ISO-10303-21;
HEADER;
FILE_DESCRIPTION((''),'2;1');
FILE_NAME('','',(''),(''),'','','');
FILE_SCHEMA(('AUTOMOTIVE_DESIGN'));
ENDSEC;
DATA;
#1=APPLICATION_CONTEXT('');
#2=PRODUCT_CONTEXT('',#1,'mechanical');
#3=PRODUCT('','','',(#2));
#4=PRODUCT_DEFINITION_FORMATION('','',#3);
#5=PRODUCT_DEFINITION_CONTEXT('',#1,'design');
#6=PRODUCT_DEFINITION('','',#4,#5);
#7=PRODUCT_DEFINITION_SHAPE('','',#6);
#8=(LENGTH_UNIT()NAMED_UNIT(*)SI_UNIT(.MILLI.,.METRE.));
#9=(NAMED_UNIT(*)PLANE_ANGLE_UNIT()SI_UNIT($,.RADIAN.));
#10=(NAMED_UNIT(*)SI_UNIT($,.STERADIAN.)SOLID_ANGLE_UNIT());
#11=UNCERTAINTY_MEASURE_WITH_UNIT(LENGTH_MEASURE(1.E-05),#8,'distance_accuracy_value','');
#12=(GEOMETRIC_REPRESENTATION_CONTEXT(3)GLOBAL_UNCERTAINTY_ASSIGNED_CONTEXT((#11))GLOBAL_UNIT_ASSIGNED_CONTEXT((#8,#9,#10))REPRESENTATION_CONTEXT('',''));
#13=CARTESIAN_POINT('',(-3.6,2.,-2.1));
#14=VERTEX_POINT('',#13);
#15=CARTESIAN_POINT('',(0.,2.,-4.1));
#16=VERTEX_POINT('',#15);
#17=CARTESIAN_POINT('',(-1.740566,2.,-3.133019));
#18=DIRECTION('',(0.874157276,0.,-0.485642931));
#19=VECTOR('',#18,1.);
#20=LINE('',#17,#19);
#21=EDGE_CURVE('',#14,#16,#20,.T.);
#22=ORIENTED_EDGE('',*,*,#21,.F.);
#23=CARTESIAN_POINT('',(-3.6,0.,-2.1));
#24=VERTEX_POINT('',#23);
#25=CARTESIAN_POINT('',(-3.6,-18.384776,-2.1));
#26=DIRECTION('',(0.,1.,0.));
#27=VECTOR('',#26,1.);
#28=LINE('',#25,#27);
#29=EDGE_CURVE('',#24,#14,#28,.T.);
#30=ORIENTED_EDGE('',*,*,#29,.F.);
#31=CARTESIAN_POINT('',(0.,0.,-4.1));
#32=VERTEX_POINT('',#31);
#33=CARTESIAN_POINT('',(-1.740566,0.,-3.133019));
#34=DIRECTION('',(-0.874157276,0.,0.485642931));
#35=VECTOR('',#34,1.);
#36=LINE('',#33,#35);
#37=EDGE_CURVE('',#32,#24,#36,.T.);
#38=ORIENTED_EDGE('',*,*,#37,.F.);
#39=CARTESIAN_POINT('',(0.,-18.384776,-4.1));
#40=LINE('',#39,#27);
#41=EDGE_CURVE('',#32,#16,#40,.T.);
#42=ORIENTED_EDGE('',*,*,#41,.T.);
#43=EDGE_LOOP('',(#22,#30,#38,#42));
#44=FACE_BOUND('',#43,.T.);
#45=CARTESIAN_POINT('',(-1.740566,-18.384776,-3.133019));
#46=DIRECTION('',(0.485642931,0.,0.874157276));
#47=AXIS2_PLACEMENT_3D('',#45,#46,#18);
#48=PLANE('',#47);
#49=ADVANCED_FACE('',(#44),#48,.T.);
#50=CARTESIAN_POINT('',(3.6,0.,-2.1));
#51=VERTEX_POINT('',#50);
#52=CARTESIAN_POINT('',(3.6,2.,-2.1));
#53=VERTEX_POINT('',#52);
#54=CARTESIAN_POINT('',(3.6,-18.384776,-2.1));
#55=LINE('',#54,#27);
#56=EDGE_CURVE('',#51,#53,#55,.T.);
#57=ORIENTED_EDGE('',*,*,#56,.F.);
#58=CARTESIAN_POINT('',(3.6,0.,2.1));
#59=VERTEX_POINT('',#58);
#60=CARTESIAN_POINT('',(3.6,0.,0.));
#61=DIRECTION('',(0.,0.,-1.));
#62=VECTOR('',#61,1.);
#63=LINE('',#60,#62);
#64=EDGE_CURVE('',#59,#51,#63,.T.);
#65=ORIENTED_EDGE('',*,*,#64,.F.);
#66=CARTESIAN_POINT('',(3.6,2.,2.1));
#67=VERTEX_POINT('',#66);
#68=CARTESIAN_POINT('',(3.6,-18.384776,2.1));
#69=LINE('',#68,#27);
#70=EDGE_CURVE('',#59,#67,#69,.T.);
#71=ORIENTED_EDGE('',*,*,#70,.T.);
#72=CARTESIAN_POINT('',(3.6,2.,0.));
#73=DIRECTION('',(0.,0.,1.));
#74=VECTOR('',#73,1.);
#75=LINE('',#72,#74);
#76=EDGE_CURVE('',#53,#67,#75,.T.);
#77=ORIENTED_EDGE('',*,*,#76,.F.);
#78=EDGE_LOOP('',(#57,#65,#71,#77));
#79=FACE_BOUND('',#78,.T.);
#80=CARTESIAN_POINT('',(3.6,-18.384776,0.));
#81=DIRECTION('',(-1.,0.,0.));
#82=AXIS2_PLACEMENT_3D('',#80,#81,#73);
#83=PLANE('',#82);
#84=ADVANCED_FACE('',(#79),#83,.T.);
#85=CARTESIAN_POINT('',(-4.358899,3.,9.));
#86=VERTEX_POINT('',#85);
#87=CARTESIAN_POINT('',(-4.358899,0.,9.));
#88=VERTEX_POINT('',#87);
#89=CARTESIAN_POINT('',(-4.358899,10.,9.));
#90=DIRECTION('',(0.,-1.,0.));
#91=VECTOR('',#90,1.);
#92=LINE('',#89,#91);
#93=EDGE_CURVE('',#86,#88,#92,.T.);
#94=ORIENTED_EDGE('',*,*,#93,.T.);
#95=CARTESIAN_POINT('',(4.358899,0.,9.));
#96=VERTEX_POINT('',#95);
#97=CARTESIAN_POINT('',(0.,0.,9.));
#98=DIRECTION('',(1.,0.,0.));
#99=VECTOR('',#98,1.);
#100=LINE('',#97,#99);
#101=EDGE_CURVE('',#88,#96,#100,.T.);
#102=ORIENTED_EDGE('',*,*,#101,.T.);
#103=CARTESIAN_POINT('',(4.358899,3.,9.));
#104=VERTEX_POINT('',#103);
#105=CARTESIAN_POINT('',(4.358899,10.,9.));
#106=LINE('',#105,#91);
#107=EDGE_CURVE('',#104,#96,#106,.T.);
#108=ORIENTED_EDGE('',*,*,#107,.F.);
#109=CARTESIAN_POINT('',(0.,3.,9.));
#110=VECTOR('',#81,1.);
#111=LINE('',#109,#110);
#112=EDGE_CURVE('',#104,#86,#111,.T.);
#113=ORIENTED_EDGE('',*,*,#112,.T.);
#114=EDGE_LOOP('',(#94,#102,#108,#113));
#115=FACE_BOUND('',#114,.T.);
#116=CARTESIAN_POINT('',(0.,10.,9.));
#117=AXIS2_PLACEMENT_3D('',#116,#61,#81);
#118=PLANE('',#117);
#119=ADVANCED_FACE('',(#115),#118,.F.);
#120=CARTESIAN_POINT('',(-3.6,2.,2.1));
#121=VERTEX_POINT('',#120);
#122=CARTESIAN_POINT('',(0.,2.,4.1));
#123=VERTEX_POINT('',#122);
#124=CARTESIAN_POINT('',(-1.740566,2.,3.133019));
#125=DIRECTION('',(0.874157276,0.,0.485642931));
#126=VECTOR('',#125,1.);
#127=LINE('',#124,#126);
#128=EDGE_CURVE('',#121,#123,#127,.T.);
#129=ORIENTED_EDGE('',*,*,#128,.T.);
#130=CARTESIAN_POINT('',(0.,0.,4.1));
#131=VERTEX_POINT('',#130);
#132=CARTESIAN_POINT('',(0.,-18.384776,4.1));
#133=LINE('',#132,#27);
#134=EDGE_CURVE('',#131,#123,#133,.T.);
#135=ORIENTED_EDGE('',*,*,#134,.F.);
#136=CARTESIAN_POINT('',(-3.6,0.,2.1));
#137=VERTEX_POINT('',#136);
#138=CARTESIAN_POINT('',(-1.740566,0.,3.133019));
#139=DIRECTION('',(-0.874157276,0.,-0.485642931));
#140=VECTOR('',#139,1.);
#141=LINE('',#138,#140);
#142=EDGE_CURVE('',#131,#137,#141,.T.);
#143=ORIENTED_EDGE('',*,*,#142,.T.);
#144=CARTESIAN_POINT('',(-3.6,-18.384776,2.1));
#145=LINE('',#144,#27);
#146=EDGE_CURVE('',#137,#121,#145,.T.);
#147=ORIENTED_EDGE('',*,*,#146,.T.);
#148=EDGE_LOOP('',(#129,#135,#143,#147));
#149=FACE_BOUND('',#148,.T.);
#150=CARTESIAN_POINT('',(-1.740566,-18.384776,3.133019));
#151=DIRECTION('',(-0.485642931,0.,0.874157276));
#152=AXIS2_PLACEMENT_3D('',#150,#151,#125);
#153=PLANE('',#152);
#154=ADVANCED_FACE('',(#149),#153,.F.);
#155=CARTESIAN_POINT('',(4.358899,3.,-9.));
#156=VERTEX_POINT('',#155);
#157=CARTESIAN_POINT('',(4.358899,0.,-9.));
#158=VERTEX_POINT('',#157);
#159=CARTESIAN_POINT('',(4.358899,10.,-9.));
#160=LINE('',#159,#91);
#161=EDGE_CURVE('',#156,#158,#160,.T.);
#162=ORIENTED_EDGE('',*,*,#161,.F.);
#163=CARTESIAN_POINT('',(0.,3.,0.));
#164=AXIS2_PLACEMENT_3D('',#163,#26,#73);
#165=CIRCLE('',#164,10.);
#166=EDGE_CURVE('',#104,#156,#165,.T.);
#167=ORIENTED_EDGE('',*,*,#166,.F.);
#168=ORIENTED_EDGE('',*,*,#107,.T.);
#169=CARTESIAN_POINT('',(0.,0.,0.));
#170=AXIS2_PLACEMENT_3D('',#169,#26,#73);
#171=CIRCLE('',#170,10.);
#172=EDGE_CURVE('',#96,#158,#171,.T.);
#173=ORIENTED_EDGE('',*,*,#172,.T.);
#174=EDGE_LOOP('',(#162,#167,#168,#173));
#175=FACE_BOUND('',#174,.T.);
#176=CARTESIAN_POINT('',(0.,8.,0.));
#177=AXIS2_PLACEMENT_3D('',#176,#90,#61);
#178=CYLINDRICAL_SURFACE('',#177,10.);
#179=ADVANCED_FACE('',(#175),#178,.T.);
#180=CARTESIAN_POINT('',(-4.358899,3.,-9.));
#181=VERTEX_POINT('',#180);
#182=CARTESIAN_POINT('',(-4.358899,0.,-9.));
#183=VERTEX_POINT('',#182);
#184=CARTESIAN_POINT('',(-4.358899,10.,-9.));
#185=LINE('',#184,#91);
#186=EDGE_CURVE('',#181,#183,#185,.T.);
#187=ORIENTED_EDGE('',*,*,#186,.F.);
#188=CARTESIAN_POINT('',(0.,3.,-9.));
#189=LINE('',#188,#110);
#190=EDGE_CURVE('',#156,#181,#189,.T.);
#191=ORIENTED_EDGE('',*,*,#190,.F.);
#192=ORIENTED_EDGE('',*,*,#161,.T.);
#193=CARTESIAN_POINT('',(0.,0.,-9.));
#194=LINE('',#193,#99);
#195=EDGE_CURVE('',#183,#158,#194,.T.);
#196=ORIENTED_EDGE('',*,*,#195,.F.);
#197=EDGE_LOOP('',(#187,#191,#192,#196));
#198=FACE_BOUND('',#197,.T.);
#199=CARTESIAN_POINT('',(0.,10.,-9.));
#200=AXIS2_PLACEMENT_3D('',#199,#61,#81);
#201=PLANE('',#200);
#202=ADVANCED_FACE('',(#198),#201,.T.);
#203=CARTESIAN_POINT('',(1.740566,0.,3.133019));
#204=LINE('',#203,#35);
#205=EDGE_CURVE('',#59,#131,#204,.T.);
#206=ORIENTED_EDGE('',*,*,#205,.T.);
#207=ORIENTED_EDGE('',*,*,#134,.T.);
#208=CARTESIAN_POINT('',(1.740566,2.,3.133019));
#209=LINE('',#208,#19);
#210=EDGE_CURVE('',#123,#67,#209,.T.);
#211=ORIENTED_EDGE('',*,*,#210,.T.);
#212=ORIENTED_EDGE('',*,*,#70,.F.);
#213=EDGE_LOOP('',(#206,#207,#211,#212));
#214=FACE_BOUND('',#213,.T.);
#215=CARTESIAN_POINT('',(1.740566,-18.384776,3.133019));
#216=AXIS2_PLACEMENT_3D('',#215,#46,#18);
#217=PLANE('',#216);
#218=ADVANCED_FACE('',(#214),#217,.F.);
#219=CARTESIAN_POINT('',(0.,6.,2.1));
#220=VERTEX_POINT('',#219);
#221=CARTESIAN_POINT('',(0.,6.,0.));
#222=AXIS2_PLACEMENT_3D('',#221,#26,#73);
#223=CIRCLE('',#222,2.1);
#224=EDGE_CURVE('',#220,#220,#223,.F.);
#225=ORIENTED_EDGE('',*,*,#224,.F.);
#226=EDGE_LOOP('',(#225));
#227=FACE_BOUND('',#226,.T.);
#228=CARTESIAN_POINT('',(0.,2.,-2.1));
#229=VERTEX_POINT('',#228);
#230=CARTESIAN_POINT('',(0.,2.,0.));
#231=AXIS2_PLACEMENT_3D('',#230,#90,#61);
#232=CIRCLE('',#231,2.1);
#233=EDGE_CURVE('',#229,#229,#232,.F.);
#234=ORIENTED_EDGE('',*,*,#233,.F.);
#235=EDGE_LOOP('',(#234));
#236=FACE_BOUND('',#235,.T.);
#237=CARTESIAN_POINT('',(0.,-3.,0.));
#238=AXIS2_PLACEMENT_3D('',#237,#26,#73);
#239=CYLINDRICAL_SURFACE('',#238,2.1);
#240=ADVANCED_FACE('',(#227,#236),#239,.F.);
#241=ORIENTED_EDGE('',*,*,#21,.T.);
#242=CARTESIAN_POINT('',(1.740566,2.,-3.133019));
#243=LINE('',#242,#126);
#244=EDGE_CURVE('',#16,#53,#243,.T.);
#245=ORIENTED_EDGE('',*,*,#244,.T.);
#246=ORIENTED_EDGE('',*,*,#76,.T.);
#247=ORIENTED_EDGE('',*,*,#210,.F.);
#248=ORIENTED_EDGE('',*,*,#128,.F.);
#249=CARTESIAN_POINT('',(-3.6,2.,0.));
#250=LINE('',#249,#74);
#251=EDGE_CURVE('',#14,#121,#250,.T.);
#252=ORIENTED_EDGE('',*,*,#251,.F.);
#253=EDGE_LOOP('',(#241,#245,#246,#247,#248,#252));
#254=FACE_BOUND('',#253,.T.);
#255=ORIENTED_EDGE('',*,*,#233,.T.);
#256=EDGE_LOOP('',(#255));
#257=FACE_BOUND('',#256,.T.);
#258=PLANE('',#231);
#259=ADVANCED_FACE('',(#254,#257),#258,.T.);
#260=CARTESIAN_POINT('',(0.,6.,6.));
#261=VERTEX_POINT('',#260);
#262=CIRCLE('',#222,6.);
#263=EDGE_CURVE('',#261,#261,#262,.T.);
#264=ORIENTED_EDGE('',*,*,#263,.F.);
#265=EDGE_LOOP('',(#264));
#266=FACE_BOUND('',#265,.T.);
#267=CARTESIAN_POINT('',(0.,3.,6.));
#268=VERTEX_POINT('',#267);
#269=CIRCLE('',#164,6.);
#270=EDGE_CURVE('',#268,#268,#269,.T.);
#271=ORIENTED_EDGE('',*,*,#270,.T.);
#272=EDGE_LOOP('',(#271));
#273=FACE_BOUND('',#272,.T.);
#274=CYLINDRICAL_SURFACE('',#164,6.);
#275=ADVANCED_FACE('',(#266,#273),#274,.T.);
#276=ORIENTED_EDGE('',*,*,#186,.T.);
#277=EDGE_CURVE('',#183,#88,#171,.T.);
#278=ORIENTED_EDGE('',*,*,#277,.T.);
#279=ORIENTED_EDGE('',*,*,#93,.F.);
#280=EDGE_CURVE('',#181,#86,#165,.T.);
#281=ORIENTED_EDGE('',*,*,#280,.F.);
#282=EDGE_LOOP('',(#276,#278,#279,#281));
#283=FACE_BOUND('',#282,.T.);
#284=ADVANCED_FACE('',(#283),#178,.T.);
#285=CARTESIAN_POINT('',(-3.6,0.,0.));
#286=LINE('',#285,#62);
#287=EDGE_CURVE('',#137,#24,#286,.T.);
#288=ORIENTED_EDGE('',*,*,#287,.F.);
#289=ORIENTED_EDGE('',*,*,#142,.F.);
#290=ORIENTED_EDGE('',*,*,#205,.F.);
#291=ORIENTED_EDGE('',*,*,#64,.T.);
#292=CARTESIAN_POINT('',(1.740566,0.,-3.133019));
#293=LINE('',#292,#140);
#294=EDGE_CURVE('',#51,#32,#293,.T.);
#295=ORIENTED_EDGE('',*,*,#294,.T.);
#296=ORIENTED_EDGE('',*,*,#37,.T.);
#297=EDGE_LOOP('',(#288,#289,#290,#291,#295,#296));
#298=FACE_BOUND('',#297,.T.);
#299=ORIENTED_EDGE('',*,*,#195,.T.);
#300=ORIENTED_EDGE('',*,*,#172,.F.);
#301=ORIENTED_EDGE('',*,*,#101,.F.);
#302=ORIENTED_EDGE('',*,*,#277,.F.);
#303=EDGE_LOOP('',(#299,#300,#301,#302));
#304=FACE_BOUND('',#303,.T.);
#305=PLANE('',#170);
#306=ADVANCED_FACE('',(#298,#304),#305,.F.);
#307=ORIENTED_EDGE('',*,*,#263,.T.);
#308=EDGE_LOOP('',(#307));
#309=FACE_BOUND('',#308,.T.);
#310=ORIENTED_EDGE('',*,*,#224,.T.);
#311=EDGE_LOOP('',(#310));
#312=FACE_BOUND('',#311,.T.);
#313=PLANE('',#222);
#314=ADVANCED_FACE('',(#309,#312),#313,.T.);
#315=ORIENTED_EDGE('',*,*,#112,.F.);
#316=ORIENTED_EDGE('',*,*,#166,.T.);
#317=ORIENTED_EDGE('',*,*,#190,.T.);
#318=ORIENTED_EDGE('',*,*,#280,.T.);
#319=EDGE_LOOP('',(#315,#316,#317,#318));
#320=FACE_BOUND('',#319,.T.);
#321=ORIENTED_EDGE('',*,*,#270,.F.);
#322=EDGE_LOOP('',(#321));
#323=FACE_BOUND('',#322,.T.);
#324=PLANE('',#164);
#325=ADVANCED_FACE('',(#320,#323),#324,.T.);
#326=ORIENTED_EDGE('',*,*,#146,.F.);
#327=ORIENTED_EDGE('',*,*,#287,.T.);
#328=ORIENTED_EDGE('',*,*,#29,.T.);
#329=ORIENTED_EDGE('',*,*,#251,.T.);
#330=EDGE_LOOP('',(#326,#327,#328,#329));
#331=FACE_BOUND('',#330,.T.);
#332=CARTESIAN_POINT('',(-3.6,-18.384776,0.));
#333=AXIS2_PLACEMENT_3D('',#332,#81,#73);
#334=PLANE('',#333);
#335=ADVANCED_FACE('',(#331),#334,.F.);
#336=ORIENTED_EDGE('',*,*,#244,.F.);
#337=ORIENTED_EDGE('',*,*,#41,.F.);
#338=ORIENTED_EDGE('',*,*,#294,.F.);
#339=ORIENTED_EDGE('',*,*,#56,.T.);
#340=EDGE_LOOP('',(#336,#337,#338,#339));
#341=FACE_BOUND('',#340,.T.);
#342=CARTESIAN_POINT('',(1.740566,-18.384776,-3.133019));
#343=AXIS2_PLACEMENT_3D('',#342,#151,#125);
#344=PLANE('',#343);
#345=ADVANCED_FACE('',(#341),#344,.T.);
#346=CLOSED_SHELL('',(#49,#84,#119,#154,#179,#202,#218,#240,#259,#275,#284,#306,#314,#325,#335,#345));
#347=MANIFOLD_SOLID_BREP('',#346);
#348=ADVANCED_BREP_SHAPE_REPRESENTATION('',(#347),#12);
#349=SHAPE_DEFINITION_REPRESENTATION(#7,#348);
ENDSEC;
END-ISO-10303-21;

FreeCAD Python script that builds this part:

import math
import FreeCAD as App
import Part
import Sketcher

V = App.Vector
Q = App.Units.Quantity

doc = App.newDocument("Part")
params = doc.addObject("Spreadsheet::Sheet", "Params")
for row, (alias, value) in enumerate([
    ("sketch1_diameter", "20 mm"),
    ("pad1_length", "8 mm"),
    ("sketch2_diameter", "20 mm"),
    ("sketch2_diameter2", "12 mm"),
    ("pocket1_length", "5 mm"),
    ("sketch3_diameter", "4.2 mm"),
    ("pocket2_length", "11 mm"),
    ("sketch4_diameter", "12 mm"),
    ("pocket3_length", "1.5 mm"),
    ("sketch5_diameter", "13 mm"),
    ("pocket4_length", "2 mm"),
    ("sketch6_diameter", "12 mm"),
    ("pocket5_length", "1 mm"),
    ("sketch7_diameter", "12 mm"),
    ("pocket6_length", "1 mm"),
    ("sketch8_diameter", "13 mm"),
    ("sketch8_height", "4.2 mm"),
    ("pad2_length", "2 mm"),
    ("sketch9_radius", "10 mm"),
    ("pocket7_length", "10 mm"),
], start=1):
    params.set(f"A{row}", alias)
    params.set(f"B{row}", "=" + value)
    params.setAlias(f"B{row}", alias)

body = doc.addObject("PartDesign::Body", "Body")

sketch1 = body.newObject("Sketcher::SketchObject", "Sketch")
sketch1.AttachmentSupport = (doc.getObject("XZ_Plane"), [""])
sketch1.MapMode = "FlatFace"
sketch1.addGeometry(Part.Circle(V(0, 0, 0), V(0, 0, 1), 10), False)
sketch1.addConstraint(Sketcher.Constraint("Coincident", 0, 3, -1, 1))
sketch1.addConstraint(Sketcher.Constraint("Diameter", 0, Q("20 mm")))
sketch1.setExpression("Constraints[1]", "Params.sketch1_diameter")
pad1 = body.newObject("PartDesign::Pad", "Pad")
pad1.Profile = sketch1
pad1.setExpression("Length", "Params.pad1_length")
pad1.Reversed = True

sketch2 = body.newObject("Sketcher::SketchObject", "Sketch001")
sketch2.AttachmentSupport = (doc.getObject("XZ_Plane"), [""])
sketch2.MapMode = "FlatFace"
sketch2.AttachmentOffset = App.Placement(V(0, 0, -8), App.Rotation())
sketch2.addGeometry(Part.Circle(V(0, 0, 0), V(0, 0, 1), 10), False)
sketch2.addGeometry(Part.Circle(V(0, 0, 0), V(0, 0, 1), 6), False)
sketch2.addConstraint(Sketcher.Constraint("Coincident", 0, 3, -1, 1))
sketch2.addConstraint(Sketcher.Constraint("Coincident", 1, 3, -1, 1))
sketch2.addConstraint(Sketcher.Constraint("Diameter", 0, Q("20 mm")))
sketch2.addConstraint(Sketcher.Constraint("Diameter", 1, Q("12 mm")))
sketch2.setExpression("Constraints[2]", "Params.sketch2_diameter")
sketch2.setExpression("Constraints[3]", "Params.sketch2_diameter2")
pocket1 = body.newObject("PartDesign::Pocket", "Pocket")
pocket1.Profile = sketch2
pocket1.setExpression("Length", "Params.pocket1_length")
pocket1.Reversed = True

sketch3 = body.newObject("Sketcher::SketchObject", "Sketch002")
sketch3.AttachmentSupport = (doc.getObject("XZ_Plane"), [""])
sketch3.MapMode = "FlatFace"
sketch3.AttachmentOffset = App.Placement(V(0, 0, -8), App.Rotation())
sketch3.addGeometry(Part.Circle(V(0, 0, 0), V(0, 0, 1), 2.1), False)
sketch3.addConstraint(Sketcher.Constraint("Coincident", 0, 3, -1, 1))
sketch3.addConstraint(Sketcher.Constraint("Diameter", 0, Q("4.2 mm")))
sketch3.setExpression("Constraints[1]", "Params.sketch3_diameter")
pocket2 = body.newObject("PartDesign::Pocket", "Pocket001")
pocket2.Profile = sketch3
pocket2.setExpression("Length", "Params.pocket2_length")
pocket2.Reversed = True

sketch4 = body.newObject("Sketcher::SketchObject", "Sketch003")
sketch4.AttachmentSupport = (doc.getObject("XZ_Plane"), [""])
sketch4.MapMode = "FlatFace"
sketch4.addGeometry(Part.Circle(V(0, 0, 0), V(0, 0, 1), 6), False)
sketch4.addConstraint(Sketcher.Constraint("Coincident", 0, 3, -1, 1))
sketch4.addConstraint(Sketcher.Constraint("Diameter", 0, Q("12 mm")))
sketch4.setExpression("Constraints[1]", "Params.sketch4_diameter")
pocket3 = body.newObject("PartDesign::Pocket", "Pocket002")
pocket3.Profile = sketch4
pocket3.setExpression("Length", "Params.pocket3_length")

sketch5 = body.newObject("Sketcher::SketchObject", "Sketch004")
sketch5.AttachmentSupport = (doc.getObject("XZ_Plane"), [""])
sketch5.MapMode = "FlatFace"
sketch5.addGeometry(Part.Circle(V(0, 0, 0), V(0, 0, 1), 6), False)
sketch5.addConstraint(Sketcher.Constraint("Coincident", 0, 3, -1, 1))
sketch5.addConstraint(Sketcher.Constraint("Diameter", 0, Q("13 mm")))
sketch5.setExpression("Constraints[1]", "Params.sketch5_diameter")
pocket4 = body.newObject("PartDesign::Pocket", "Pocket003")
pocket4.Profile = sketch5
pocket4.setExpression("Length", "Params.pocket4_length")

sketch6 = body.newObject("Sketcher::SketchObject", "Sketch005")
sketch6.AttachmentSupport = (doc.getObject("XZ_Plane"), [""])
sketch6.MapMode = "FlatFace"
sketch6.AttachmentOffset = App.Placement(V(0, 0, -8), App.Rotation())
sketch6.addGeometry(Part.Circle(V(0, 0, 0), V(0, 0, 1), 6), False)
sketch6.addConstraint(Sketcher.Constraint("Coincident", 0, 3, -1, 1))
sketch6.addConstraint(Sketcher.Constraint("Diameter", 0, Q("12 mm")))
sketch6.setExpression("Constraints[1]", "Params.sketch6_diameter")
pocket5 = body.newObject("PartDesign::Pocket", "Pocket004")
pocket5.Profile = sketch6
pocket5.setExpression("Length", "Params.pocket5_length")
pocket5.Reversed = True

sketch7 = body.newObject("Sketcher::SketchObject", "Sketch006")
sketch7.AttachmentSupport = (doc.getObject("XZ_Plane"), [""])
sketch7.MapMode = "FlatFace"
sketch7.AttachmentOffset = App.Placement(V(0, 0, -7), App.Rotation())
sketch7.addGeometry(Part.Circle(V(0, 0, 0), V(0, 0, 1), 6), False)
sketch7.addConstraint(Sketcher.Constraint("Coincident", 0, 3, -1, 1))
sketch7.addConstraint(Sketcher.Constraint("Diameter", 0, Q("12 mm")))
sketch7.setExpression("Constraints[1]", "Params.sketch7_diameter")
pocket6 = body.newObject("PartDesign::Pocket", "Pocket005")
pocket6.Profile = sketch7
pocket6.setExpression("Length", "Params.pocket6_length")
pocket6.Reversed = True

sketch8 = body.newObject("Sketcher::SketchObject", "Sketch007")
sketch8.AttachmentSupport = (doc.getObject("XZ_Plane"), [""])
sketch8.MapMode = "FlatFace"
sketch8.AttachmentOffset = App.Placement(V(0, 0, -2), App.Rotation())
sketch8.addGeometry(Part.Circle(V(0, 0, 0), V(0, 0, 1), 6.5), False)
sketch8.addGeometry(Part.LineSegment(V(0, -4.1, 0), V(-3.6, -2.1, 0)), False)
sketch8.addGeometry(Part.LineSegment(V(-3.6, -2.1, 0), V(-3.6, 2.1, 0)), False)
sketch8.addGeometry(Part.LineSegment(V(-3.6, 2.1, 0), V(0, 4.1, 0)), False)
sketch8.addGeometry(Part.LineSegment(V(0, 4.1, 0), V(3.6, 2.1, 0)), False)
sketch8.addGeometry(Part.LineSegment(V(3.6, 2.1, 0), V(3.6, -2.1, 0)), False)
sketch8.addGeometry(Part.LineSegment(V(3.6, -2.1, 0), V(0, -4.1, 0)), False)
sketch8.addConstraint(Sketcher.Constraint("Coincident", 1, 2, 2, 1))
sketch8.addConstraint(Sketcher.Constraint("Coincident", 2, 2, 3, 1))
sketch8.addConstraint(Sketcher.Constraint("Coincident", 3, 2, 4, 1))
sketch8.addConstraint(Sketcher.Constraint("Coincident", 4, 2, 5, 1))
sketch8.addConstraint(Sketcher.Constraint("Coincident", 5, 2, 6, 1))
sketch8.addConstraint(Sketcher.Constraint("Coincident", 6, 2, 1, 1))
sketch8.addConstraint(Sketcher.Constraint("Vertical", 2))
sketch8.addConstraint(Sketcher.Constraint("Vertical", 5))
sketch8.addConstraint(Sketcher.Constraint("Coincident", 0, 3, -1, 1))
sketch8.addConstraint(Sketcher.Constraint("Symmetric", 1, 2, 4, 2, -1, 1))
sketch8.addConstraint(Sketcher.Constraint("Symmetric", 3, 2, 6, 2, -1, 1))
sketch8.addConstraint(Sketcher.Constraint("PointOnObject", 3, 2, -2))
sketch8.addConstraint(Sketcher.Constraint("Parallel", 3, 6))
sketch8.addConstraint(Sketcher.Constraint("Horizontal", 2, 2, 4, 2))
sketch8.addConstraint(Sketcher.Constraint("Diameter", 0, Q("13 mm")))
sketch8.addConstraint(Sketcher.Constraint("DistanceY", 2, 1, 2, 2, Q("4.2 mm")))
sketch8.addConstraint(Sketcher.Constraint("DistanceY", 2, 2, 3, 2, Q("2 mm")))
sketch8.addConstraint(Sketcher.Constraint("DistanceX", 1, 2, -1, 1, Q("3.6 mm")))
sketch8.setExpression("Constraints[14]", "Params.sketch8_diameter")
sketch8.setExpression("Constraints[15]", "Params.sketch8_height")
pad2 = body.newObject("PartDesign::Pad", "Pad001")
pad2.Profile = sketch8
pad2.setExpression("Length", "Params.pad2_length")

sketch9 = body.newObject("Sketcher::SketchObject", "Sketch008")
sketch9.AttachmentSupport = (doc.getObject("XZ_Plane"), [""])
sketch9.MapMode = "FlatFace"
sketch9.addGeometry(Part.ArcOfCircle(Part.Circle(V(0, 0, 0), V(0, 0, 1), 10), math.radians(64), math.radians(116)), False)
sketch9.addGeometry(Part.LineSegment(V(-4, 9, 0), V(4, 9, 0)), False)
sketch9.addGeometry(Part.ArcOfCircle(Part.Circle(V(0, 0, 0), V(0, 0, 1), 10), math.radians(-116), math.radians(-64)), False)
sketch9.addGeometry(Part.LineSegment(V(4, -9, 0), V(-4, -9, 0)), False)
sketch9.addConstraint(Sketcher.Constraint("Coincident", 0, 1, 1, 2))
sketch9.addConstraint(Sketcher.Constraint("Coincident", 1, 1, 0, 2))
sketch9.addConstraint(Sketcher.Constraint("Coincident", 2, 1, 3, 2))
sketch9.addConstraint(Sketcher.Constraint("Coincident", 3, 1, 2, 2))
sketch9.addConstraint(Sketcher.Constraint("Horizontal", 1))
sketch9.addConstraint(Sketcher.Constraint("Horizontal", 3))
sketch9.addConstraint(Sketcher.Constraint("Coincident", 0, 3, -1, 1))
sketch9.addConstraint(Sketcher.Constraint("Coincident", 2, 3, -1, 1))
sketch9.addConstraint(Sketcher.Constraint("Equal", 0, 2))
sketch9.addConstraint(Sketcher.Constraint("Vertical", 1, 1, 2, 1))
sketch9.addConstraint(Sketcher.Constraint("Radius", 0, Q("10 mm")))
sketch9.addConstraint(Sketcher.Constraint("DistanceY", -1, 1, 0, 1, Q("9 mm")))
sketch9.setExpression("Constraints[10]", "Params.sketch9_radius")
pocket7 = body.newObject("PartDesign::Pocket", "Pocket006")
pocket7.Profile = sketch9
pocket7.setExpression("Length", "Params.pocket7_length")

doc.recompute()
